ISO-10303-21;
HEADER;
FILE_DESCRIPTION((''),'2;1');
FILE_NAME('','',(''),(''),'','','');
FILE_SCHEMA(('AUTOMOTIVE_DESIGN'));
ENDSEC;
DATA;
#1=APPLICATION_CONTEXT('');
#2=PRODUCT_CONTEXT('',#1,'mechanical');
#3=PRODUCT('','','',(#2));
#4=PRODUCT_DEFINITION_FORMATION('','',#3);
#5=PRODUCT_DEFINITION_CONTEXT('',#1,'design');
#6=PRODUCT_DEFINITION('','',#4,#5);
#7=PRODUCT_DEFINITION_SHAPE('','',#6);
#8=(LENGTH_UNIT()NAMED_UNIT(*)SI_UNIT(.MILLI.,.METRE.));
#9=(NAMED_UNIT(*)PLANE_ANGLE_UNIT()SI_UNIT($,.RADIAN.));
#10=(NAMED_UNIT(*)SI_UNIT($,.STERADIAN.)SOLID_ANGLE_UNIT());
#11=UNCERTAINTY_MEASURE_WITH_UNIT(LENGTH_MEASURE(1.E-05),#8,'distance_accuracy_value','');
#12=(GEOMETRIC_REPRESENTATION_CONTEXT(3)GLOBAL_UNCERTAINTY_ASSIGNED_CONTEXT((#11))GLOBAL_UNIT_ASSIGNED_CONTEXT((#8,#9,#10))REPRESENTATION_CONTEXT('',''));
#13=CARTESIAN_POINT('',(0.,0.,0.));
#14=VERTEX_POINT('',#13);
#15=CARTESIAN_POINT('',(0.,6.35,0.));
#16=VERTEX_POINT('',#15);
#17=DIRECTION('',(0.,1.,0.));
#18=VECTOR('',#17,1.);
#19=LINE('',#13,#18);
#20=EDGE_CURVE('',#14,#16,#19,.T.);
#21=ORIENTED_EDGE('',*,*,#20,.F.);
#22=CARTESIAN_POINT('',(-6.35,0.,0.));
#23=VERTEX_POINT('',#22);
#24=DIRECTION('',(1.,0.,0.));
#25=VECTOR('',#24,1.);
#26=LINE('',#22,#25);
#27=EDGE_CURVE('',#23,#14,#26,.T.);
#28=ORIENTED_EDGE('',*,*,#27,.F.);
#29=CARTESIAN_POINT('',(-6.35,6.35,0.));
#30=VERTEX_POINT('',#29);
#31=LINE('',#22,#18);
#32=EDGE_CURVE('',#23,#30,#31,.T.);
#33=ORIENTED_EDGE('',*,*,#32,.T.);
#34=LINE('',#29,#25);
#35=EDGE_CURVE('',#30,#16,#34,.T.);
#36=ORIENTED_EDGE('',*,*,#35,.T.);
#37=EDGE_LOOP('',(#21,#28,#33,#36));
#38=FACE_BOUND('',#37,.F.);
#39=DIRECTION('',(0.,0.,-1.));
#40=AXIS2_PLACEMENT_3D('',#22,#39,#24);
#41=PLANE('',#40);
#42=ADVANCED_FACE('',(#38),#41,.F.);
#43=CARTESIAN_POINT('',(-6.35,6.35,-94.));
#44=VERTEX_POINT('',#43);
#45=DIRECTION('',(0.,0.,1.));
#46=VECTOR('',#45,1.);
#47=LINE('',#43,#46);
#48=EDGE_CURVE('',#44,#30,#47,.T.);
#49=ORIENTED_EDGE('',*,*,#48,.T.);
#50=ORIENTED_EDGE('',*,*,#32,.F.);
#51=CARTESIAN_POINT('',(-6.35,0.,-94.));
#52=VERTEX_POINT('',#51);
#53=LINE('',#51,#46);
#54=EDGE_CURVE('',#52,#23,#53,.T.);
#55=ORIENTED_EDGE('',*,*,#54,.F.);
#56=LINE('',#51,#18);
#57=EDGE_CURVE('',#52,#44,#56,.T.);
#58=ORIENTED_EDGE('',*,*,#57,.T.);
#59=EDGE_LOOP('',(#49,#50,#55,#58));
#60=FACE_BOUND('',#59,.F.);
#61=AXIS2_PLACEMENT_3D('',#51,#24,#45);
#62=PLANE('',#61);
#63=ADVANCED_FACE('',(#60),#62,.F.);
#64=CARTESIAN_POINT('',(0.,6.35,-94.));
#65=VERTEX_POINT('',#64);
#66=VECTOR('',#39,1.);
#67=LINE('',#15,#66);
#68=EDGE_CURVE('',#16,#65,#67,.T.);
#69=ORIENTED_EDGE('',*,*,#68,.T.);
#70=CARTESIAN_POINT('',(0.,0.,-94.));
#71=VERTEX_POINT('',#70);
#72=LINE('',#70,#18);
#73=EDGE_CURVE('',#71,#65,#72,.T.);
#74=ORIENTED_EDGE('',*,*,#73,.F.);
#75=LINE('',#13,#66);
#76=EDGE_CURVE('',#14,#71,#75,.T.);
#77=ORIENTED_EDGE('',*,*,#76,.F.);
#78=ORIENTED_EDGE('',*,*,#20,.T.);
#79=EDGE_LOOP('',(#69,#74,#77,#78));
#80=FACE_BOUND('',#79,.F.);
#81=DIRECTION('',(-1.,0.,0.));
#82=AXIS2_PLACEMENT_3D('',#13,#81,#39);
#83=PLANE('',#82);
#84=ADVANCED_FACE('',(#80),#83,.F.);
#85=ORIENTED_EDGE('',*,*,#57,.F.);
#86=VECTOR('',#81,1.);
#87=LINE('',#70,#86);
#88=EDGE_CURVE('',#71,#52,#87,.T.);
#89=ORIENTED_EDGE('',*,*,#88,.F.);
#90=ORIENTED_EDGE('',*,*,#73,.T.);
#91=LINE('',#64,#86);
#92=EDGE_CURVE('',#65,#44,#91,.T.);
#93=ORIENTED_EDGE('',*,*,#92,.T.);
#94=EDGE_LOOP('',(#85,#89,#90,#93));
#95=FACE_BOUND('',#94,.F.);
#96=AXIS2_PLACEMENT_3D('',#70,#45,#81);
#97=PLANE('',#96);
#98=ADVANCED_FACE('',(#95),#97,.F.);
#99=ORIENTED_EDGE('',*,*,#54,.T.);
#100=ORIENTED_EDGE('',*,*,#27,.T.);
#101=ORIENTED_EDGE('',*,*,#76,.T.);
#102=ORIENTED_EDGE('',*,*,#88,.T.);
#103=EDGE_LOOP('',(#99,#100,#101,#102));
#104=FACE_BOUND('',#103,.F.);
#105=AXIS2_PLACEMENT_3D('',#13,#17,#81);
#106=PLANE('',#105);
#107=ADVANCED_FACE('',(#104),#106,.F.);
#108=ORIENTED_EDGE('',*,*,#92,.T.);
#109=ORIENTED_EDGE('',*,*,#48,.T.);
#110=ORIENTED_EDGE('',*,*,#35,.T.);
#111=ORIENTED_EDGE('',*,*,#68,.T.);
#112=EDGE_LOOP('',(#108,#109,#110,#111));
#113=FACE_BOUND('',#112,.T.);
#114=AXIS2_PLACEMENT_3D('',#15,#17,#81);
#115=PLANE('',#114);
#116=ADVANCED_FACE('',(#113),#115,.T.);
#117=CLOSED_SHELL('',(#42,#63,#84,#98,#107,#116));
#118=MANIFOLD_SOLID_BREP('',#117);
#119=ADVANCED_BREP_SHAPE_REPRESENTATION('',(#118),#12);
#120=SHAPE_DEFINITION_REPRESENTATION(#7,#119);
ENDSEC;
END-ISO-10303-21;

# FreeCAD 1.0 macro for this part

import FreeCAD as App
import Part
import Sketcher
from FreeCAD import Vector


def add_polygon(sketch, points):
    """Adds a closed chain of lines whose ends are joined by coincident constraints."""
    first, n = sketch.GeometryCount, len(points)
    for a, b in zip(points, points[1:] + points[:1]):
        sketch.addGeometry(Part.LineSegment(App.Vector(*a, 0), App.Vector(*b, 0)), False)
    for i in range(n):
        sketch.addConstraint(Sketcher.Constraint("Coincident", first + i, 2, first + (i + 1) % n, 1))

doc = App.newDocument("Part")
body = doc.addObject("PartDesign::Body", "Body")

# Sketch on XZ plane
sketch1 = body.newObject("Sketcher::SketchObject", "Sketch")
sketch1.AttachmentSupport = (doc.getObject("XZ_Plane"), [""])
sketch1.MapMode = "FlatFace"
add_polygon(sketch1, [(-6, 0), (0, 0), (0, -94), (-6, -94)])  # lines 0-3
sketch1.addConstraint(Sketcher.Constraint("Horizontal", 0))
sketch1.addConstraint(Sketcher.Constraint("Vertical", 1))
sketch1.addConstraint(Sketcher.Constraint("Horizontal", 2))
sketch1.addConstraint(Sketcher.Constraint("Vertical", 3))
sketch1.addConstraint(Sketcher.Constraint("Coincident", 0, 2, -1, 1))
sketch1.addConstraint(Sketcher.Constraint("DistanceY", 1, 2, 1, 1, 94.0))
sketch1.addConstraint(Sketcher.Constraint("DistanceX", 0, 1, 0, 2, 6.35))
pad1 = body.newObject("PartDesign::Pad", "Pad")
pad1.Profile = sketch1
pad1.Length = 6.35
pad1.Reversed = True

doc.recompute()
